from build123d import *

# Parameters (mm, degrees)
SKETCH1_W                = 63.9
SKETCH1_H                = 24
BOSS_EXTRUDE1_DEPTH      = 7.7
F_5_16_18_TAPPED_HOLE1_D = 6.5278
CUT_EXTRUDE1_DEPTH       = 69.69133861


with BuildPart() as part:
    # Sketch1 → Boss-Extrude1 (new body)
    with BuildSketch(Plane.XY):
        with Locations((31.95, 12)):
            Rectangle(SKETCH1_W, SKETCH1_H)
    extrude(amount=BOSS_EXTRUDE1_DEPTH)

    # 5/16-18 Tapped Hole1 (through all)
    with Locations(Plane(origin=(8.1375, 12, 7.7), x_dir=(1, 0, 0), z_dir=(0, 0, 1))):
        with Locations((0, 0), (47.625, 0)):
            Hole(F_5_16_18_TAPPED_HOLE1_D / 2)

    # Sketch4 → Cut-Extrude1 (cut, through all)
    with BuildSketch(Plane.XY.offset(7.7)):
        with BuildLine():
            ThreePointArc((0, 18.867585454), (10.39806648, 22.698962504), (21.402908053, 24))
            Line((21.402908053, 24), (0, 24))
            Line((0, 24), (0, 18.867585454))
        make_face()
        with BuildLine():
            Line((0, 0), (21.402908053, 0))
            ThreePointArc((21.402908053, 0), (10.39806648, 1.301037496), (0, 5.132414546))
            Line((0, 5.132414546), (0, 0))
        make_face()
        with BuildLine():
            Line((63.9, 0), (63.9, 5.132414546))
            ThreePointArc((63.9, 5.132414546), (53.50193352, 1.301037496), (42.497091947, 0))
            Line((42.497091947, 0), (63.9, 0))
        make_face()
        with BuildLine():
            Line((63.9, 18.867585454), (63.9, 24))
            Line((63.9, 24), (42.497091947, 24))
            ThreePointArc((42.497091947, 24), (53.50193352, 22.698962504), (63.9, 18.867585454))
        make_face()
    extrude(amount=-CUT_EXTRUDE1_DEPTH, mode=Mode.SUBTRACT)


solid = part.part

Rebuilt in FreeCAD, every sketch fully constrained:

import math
import FreeCAD as App
import Part
import Sketcher
Q = App.Units.Quantity

doc = App.newDocument("Part")
params = doc.addObject("Spreadsheet::Sheet", "Params")
for row, (alias, value) in enumerate([
    ("sketch1_height", "24 mm"),
    ("sketch1_width", "63.9 mm"),
    ("pad1_length", "7.7 mm"),
    ("hole_diameter", "6.5278 mm"),
], start=1):
    params.set(f"A{row}", alias)
    params.set(f"B{row}", "=" + value)
    params.setAlias(f"B{row}", alias)

body = doc.addObject("PartDesign::Body", "Body")

sketch1 = body.newObject("Sketcher::SketchObject", "Sketch")
sketch1.AttachmentSupport = (doc.getObject("XY_Plane"), [""])
sketch1.MapMode = "FlatFace"
sketch1.addGeometry([
    Part.LineSegment(App.Vector(0, 24, 0), App.Vector(0, 0, 0)),
    Part.LineSegment(App.Vector(0, 0, 0), App.Vector(64, 0, 0)),
    Part.LineSegment(App.Vector(64, 0, 0), App.Vector(64, 24, 0)),
    Part.LineSegment(App.Vector(64, 24, 0), App.Vector(0, 24, 0)),
], False)
sketch1.addConstraint([
    Sketcher.Constraint("Coincident", 0, 2, 1, 1),
    Sketcher.Constraint("Coincident", 1, 2, 2, 1),
    Sketcher.Constraint("Coincident", 2, 2, 3, 1),
    Sketcher.Constraint("Coincident", 3, 2, 0, 1),
    Sketcher.Constraint("Vertical", 0),
    Sketcher.Constraint("Horizontal", 1),
    Sketcher.Constraint("Vertical", 2),
    Sketcher.Constraint("Horizontal", 3),
    Sketcher.Constraint("Coincident", 0, 2, -1, 1),
    Sketcher.Constraint("DistanceY", 0, 2, 0, 1, Q("24 mm")),
    Sketcher.Constraint("DistanceX", 1, 1, 1, 2, Q("63.9 mm")),
])
sketch1.setExpression("Constraints[9]", "Params.sketch1_height")
sketch1.setExpression("Constraints[10]", "Params.sketch1_width")
pad1 = body.newObject("PartDesign::Pad", "Pad")
pad1.Profile = sketch1
pad1.setExpression("Length", "Params.pad1_length")

sketch2 = body.newObject("Sketcher::SketchObject", "Sketch001")
sketch2.AttachmentSupport = (doc.getObject("XY_Plane"), [""])
sketch2.MapMode = "FlatFace"
sketch2.AttachmentOffset = App.Placement(App.Vector(0, 0, 7.7), App.Rotation())
sketch2.addGeometry([
    Part.Circle(App.Vector(8.1, 12, 0), App.Vector(0, 0, 1), 3.3),
    Part.Circle(App.Vector(55.8, 12, 0), App.Vector(0, 0, 1), 3.3),
], False)
sketch2.addConstraint([
    Sketcher.Constraint("Equal", 0, 1),
    Sketcher.Constraint("Horizontal", 0, 3, 1, 3),
    Sketcher.Constraint("DistanceY", -1, 1, 0, 3, Q("12 mm")),
    Sketcher.Constraint("Diameter", 0, Q("6.5278 mm")),
    Sketcher.Constraint("DistanceX", 0, 3, 1, 3, Q("47.625 mm")),
    Sketcher.Constraint("DistanceX", -1, 1, 0, 3, Q("8.1375 mm")),
])
doc.recompute()
hole = body.newObject("PartDesign::Hole", "Hole")
hole.Profile = sketch2
hole.ThreadType = "None"
hole.setExpression("Diameter", "Params.hole_diameter")
hole.DepthType = "ThroughAll"

sketch3 = body.newObject("Sketcher::SketchObject", "Sketch002")
sketch3.AttachmentSupport = (doc.getObject("XY_Plane"), [""])
sketch3.MapMode = "FlatFace"
sketch3.AttachmentOffset = App.Placement(App.Vector(0, 0, 7.7), App.Rotation())
sketch3.addGeometry([
    Part.ArcOfCircle(Part.Circle(App.Vector(21, -23, 0), App.Vector(0, 0, 1), 47), math.radians(90), math.radians(117)),
    Part.LineSegment(App.Vector(21, 24, 0), App.Vector(0, 24, 0)),
    Part.LineSegment(App.Vector(0, 24, 0), App.Vector(0, 19, 0)),
    Part.LineSegment(App.Vector(0, 0, 0), App.Vector(21, 0, 0)),
    Part.ArcOfCircle(Part.Circle(App.Vector(21, 47, 0), App.Vector(0, 0, 1), 47), math.radians(-117), math.radians(-90)),
    Part.LineSegment(App.Vector(0, 5, 0), App.Vector(0, 0, 0)),
    Part.LineSegment(App.Vector(64, 0, 0), App.Vector(64, 5, 0)),
    Part.ArcOfCircle(Part.Circle(App.Vector(42, 47, 0), App.Vector(0, 0, 1), 47), math.radians(-90), math.radians(-63)),
    Part.LineSegment(App.Vector(42, 0, 0), App.Vector(64, 0, 0)),
    Part.LineSegment(App.Vector(64, 19, 0), App.Vector(64, 24, 0)),
    Part.LineSegment(App.Vector(64, 24, 0), App.Vector(42, 24, 0)),
    Part.ArcOfCircle(Part.Circle(App.Vector(42, -23, 0), App.Vector(0, 0, 1), 47), math.radians(63), math.radians(90)),
], False)
sketch3.addConstraint([
    Sketcher.Constraint("Tangent", 0, 1, 1, 1),
    Sketcher.Constraint("Coincident", 1, 2, 2, 1),
    Sketcher.Constraint("Coincident", 2, 2, 0, 2),
    Sketcher.Constraint("Tangent", 3, 2, 4, 2),
    Sketcher.Constraint("Coincident", 4, 1, 5, 1),
    Sketcher.Constraint("Coincident", 5, 2, 3, 1),
    Sketcher.Constraint("Coincident", 6, 2, 7, 2),
    Sketcher.Constraint("Tangent", 7, 1, 8, 1),
    Sketcher.Constraint("Coincident", 8, 2, 6, 1),
    Sketcher.Constraint("Coincident", 9, 2, 10, 1),
    Sketcher.Constraint("Tangent", 10, 2, 11, 2),
    Sketcher.Constraint("Coincident", 11, 1, 9, 1),
    Sketcher.Constraint("Horizontal", 1),
    Sketcher.Constraint("Vertical", 2),
    Sketcher.Constraint("Horizontal", 3),
    Sketcher.Constraint("Vertical", 5),
    Sketcher.Constraint("Vertical", 6),
    Sketcher.Constraint("Horizontal", 8),
    Sketcher.Constraint("Vertical", 9),
    Sketcher.Constraint("Horizontal", 10),
    Sketcher.Constraint("Coincident", 5, 2, -1, 1),
    Sketcher.Constraint("Equal", 0, 4),
    Sketcher.Constraint("Equal", 4, 7),
    Sketcher.Constraint("Equal", 7, 11),
    Sketcher.Constraint("PointOnObject", 1, 2, -2),
    Sketcher.Constraint("PointOnObject", 7, 1, -1),
    Sketcher.Constraint("Horizontal", 0, 3, 11, 3),
    Sketcher.Constraint("Horizontal", 4, 1, 6, 2),
    Sketcher.Constraint("Horizontal", 2, 2, 11, 1),
    Sketcher.Constraint("Vertical", 0, 3, 4, 3),
    Sketcher.Constraint("Vertical", 7, 3, 11, 3),
    Sketcher.Constraint("DistanceY", -1, 1, 0, 1, Q("24 mm")),
    Sketcher.Constraint("DistanceX", -1, 1, 6, 2, Q("63.9 mm")),
    Sketcher.Constraint("Radius", 0, Q("47.192812 mm")),
    Sketcher.Constraint("DistanceX", 1, 2, 1, 1, Q("21.402908 mm")),
])
pocket1 = body.newObject("PartDesign::Pocket", "Pocket")
pocket1.Profile = sketch3
pocket1.Type = "ThroughAll"

doc.recompute()
